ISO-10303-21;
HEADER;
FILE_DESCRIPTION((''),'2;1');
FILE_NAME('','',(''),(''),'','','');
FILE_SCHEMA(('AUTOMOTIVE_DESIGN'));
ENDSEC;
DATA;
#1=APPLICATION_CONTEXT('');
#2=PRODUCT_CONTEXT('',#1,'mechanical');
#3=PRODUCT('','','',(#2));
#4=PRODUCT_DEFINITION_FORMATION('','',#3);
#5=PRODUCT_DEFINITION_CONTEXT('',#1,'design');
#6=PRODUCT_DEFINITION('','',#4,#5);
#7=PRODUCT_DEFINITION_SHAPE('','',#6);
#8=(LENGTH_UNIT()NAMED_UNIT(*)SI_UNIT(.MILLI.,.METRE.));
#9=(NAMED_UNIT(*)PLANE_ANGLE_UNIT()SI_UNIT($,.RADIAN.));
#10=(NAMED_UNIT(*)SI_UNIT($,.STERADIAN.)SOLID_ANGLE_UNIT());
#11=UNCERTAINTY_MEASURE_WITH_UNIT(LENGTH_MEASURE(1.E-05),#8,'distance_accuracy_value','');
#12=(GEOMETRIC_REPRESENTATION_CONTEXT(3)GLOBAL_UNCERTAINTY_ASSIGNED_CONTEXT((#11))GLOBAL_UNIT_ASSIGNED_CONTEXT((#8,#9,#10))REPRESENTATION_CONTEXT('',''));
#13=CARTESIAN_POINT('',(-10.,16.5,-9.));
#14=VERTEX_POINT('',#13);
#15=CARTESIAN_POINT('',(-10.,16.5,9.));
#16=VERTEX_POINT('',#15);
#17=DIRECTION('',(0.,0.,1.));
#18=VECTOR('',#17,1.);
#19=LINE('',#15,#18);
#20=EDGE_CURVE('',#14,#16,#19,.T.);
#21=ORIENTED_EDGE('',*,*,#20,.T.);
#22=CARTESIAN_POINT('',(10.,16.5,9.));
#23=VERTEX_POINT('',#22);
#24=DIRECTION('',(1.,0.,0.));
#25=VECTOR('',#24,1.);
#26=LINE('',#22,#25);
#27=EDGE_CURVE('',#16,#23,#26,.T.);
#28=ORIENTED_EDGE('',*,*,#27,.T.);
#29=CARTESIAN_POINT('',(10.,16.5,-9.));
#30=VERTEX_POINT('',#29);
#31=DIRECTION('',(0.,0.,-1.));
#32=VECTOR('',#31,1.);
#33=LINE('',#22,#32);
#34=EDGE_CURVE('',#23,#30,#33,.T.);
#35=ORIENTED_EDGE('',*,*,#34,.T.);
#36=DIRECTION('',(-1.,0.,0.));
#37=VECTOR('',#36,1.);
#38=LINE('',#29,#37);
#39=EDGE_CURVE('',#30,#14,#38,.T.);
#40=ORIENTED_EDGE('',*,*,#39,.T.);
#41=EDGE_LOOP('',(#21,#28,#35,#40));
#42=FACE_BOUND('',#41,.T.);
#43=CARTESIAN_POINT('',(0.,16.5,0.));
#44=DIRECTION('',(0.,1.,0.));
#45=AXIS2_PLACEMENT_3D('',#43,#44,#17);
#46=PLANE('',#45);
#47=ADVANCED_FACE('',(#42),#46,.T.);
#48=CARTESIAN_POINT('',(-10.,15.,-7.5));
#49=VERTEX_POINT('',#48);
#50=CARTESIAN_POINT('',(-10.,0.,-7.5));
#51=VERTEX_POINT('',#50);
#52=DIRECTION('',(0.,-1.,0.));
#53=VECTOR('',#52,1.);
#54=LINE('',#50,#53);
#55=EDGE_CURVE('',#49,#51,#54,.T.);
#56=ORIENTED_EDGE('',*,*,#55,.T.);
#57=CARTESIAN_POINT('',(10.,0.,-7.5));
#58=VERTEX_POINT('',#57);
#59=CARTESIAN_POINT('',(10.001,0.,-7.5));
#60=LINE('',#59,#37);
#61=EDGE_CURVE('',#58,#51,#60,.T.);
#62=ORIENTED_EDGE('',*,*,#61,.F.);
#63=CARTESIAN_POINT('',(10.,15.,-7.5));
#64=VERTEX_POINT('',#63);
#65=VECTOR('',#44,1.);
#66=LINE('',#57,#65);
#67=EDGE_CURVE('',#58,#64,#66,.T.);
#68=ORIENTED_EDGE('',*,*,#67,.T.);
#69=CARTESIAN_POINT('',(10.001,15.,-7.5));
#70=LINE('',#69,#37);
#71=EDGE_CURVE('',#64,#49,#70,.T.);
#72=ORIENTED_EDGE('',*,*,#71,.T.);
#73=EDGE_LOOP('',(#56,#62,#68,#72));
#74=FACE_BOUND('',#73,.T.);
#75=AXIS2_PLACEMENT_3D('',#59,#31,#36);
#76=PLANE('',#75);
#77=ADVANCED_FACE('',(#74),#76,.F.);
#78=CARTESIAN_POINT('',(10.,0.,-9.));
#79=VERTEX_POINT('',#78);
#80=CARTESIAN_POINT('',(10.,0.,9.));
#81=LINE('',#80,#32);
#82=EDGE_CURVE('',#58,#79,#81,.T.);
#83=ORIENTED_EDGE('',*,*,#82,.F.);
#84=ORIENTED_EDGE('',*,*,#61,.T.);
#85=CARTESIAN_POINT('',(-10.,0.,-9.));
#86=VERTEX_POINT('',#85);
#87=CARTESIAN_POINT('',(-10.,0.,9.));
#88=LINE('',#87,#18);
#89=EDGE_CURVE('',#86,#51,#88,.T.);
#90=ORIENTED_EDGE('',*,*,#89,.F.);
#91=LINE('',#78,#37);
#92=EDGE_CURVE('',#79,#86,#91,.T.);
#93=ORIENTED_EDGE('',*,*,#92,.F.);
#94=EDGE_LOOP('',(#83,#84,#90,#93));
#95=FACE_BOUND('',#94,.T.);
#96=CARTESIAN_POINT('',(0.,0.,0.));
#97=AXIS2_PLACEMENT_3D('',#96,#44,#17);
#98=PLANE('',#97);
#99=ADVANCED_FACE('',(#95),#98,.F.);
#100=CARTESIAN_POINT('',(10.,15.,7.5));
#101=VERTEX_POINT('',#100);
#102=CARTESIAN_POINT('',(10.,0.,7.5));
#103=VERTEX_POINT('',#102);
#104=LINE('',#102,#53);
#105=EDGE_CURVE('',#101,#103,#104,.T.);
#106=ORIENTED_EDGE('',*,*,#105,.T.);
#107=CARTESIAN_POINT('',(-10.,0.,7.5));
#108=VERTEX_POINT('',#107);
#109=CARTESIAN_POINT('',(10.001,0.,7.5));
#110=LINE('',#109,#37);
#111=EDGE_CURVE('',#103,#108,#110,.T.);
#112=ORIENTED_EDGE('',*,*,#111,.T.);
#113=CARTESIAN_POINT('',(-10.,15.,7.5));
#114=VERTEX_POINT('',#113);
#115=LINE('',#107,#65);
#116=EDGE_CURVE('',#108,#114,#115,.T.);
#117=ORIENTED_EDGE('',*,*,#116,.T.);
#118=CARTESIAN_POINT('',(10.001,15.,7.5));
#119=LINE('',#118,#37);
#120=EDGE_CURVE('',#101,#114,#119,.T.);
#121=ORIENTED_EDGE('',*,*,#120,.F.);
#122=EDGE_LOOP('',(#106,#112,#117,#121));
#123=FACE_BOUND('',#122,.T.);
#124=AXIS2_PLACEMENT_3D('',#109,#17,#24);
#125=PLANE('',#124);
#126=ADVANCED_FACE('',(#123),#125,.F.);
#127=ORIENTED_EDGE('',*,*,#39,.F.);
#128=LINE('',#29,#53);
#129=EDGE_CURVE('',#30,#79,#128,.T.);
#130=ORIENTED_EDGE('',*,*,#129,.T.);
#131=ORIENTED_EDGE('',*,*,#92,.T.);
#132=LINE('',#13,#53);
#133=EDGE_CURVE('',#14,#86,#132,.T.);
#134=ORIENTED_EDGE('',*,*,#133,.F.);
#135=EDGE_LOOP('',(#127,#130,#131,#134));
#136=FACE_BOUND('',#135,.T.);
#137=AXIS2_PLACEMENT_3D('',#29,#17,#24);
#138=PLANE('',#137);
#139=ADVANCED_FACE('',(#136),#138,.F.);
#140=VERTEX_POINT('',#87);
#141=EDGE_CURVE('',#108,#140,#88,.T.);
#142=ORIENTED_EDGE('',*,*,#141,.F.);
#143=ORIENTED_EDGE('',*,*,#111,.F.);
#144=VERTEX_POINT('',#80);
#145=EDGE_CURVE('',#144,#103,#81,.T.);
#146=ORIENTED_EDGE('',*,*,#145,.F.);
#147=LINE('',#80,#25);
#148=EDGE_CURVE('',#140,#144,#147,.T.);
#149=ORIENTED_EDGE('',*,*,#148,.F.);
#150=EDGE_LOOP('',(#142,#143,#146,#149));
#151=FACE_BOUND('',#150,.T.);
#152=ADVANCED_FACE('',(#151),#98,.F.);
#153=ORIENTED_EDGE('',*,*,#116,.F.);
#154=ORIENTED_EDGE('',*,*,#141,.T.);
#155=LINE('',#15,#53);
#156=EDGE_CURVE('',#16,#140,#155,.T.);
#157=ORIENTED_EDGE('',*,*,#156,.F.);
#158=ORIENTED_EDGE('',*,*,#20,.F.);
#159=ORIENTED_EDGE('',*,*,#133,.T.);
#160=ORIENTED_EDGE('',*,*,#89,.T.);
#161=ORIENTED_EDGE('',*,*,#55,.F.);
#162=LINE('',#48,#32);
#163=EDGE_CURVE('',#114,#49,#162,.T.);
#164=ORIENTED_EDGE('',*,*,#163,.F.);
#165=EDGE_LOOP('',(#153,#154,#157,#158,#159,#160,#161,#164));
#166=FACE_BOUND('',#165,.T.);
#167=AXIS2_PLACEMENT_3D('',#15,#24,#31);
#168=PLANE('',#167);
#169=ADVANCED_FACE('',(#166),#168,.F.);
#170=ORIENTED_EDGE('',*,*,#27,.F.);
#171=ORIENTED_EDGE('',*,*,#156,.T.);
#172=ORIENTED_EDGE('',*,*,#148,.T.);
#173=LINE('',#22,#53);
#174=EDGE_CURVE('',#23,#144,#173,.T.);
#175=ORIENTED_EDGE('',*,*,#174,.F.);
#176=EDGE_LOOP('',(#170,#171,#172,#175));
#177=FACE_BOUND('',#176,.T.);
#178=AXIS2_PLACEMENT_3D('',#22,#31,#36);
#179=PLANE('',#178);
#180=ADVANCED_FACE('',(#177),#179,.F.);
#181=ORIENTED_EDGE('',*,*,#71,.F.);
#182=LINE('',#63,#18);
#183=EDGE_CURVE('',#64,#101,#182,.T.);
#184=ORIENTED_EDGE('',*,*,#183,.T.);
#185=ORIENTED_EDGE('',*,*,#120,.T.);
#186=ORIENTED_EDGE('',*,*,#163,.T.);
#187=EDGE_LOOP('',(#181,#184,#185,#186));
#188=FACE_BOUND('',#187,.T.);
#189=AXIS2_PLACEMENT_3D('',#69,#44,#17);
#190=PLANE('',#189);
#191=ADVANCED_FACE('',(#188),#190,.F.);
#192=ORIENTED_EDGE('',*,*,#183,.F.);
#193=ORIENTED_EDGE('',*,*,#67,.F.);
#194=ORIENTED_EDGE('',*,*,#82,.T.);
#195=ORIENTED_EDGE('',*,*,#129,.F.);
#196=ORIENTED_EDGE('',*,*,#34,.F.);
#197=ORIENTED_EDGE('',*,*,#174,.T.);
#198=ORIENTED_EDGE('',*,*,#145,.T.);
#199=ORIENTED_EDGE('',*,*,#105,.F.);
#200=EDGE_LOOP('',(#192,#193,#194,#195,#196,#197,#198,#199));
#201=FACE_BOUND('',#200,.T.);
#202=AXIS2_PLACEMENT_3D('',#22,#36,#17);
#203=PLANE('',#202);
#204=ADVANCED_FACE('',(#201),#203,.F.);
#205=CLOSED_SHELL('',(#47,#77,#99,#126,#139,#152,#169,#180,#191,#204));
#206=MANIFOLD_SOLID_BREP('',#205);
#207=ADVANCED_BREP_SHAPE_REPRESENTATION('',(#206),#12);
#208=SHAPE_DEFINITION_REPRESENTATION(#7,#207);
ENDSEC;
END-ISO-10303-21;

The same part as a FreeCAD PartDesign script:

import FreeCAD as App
import Part
import Sketcher

V = App.Vector

doc = App.newDocument("Part")
body = doc.addObject("PartDesign::Body", "Body")

sketch1 = doc.addObject("Sketcher::SketchObject", "Sketch")
body.addObject(sketch1)
sketch1.AttachmentSupport = (doc.XZ_Plane, [""])
sketch1.MapMode = "FlatFace"
sketch1.addGeometry(Part.LineSegment(V(-10, -9, 0), V(-10, 9, 0)), False)
sketch1.addGeometry(Part.LineSegment(V(-10, 9, 0), V(10, 9, 0)), False)
sketch1.addGeometry(Part.LineSegment(V(10, 9, 0), V(10, -9, 0)), False)
sketch1.addGeometry(Part.LineSegment(V(10, -9, 0), V(-10, -9, 0)), False)
sketch1.addConstraint(Sketcher.Constraint("Coincident", 0, 2, 1, 1))
sketch1.addConstraint(Sketcher.Constraint("Coincident", 1, 2, 2, 1))
sketch1.addConstraint(Sketcher.Constraint("Coincident", 2, 2, 3, 1))
sketch1.addConstraint(Sketcher.Constraint("Coincident", 3, 2, 0, 1))
sketch1.addConstraint(Sketcher.Constraint("Vertical", 0))
sketch1.addConstraint(Sketcher.Constraint("Horizontal", 1))
sketch1.addConstraint(Sketcher.Constraint("Vertical", 2))
sketch1.addConstraint(Sketcher.Constraint("Horizontal", 3))
sketch1.addConstraint(Sketcher.Constraint("Symmetric", 0, 2, 2, 2, -1, 1))
sketch1.addConstraint(Sketcher.Constraint("DistanceX", 1, 1, 1, 2, 20.0))
sketch1.addConstraint(Sketcher.Constraint("DistanceY", 0, 1, 0, 2, 18.0))
pad1 = doc.addObject("PartDesign::Pad", "Pad")
body.addObject(pad1)
pad1.Profile = sketch1
pad1.Length = 16.5
pad1.Reversed = True

sketch2 = doc.addObject("Sketcher::SketchObject", "Sketch001")
body.addObject(sketch2)
sketch2.AttachmentSupport = (doc.YZ_Plane, [""])
sketch2.MapMode = "FlatFace"
sketch2.AttachmentOffset = App.Placement(V(0, 0, -10), App.Rotation())
sketch2.addGeometry(Part.LineSegment(V(15, -7.5, 0), V(0, -7.5, 0)), False)
sketch2.addGeometry(Part.LineSegment(V(0, -7.5, 0), V(0, 7.5, 0)), False)
sketch2.addGeometry(Part.LineSegment(V(0, 7.5, 0), V(15, 7.5, 0)), False)
sketch2.addGeometry(Part.LineSegment(V(15, 7.5, 0), V(15, -7.5, 0)), False)
sketch2.addConstraint(Sketcher.Constraint("Coincident", 0, 2, 1, 1))
sketch2.addConstraint(Sketcher.Constraint("Coincident", 1, 2, 2, 1))
sketch2.addConstraint(Sketcher.Constraint("Coincident", 2, 2, 3, 1))
sketch2.addConstraint(Sketcher.Constraint("Coincident", 3, 2, 0, 1))
sketch2.addConstraint(Sketcher.Constraint("Horizontal", 0))
sketch2.addConstraint(Sketcher.Constraint("Vertical", 1))
sketch2.addConstraint(Sketcher.Constraint("Horizontal", 2))
sketch2.addConstraint(Sketcher.Constraint("Vertical", 3))
sketch2.addConstraint(Sketcher.Constraint("Symmetric", 0, 2, 1, 2, -1, 1))
sketch2.addConstraint(Sketcher.Constraint("Equal", 2, 1))
sketch2.addConstraint(Sketcher.Constraint("DistanceX", 0, 2, 0, 1, 15.0))
pocket1 = doc.addObject("PartDesign::Pocket", "Pocket")
body.addObject(pocket1)
pocket1.Profile = sketch2
pocket1.Type = "UpToFirst"
pocket1.Reversed = True

doc.recompute()
